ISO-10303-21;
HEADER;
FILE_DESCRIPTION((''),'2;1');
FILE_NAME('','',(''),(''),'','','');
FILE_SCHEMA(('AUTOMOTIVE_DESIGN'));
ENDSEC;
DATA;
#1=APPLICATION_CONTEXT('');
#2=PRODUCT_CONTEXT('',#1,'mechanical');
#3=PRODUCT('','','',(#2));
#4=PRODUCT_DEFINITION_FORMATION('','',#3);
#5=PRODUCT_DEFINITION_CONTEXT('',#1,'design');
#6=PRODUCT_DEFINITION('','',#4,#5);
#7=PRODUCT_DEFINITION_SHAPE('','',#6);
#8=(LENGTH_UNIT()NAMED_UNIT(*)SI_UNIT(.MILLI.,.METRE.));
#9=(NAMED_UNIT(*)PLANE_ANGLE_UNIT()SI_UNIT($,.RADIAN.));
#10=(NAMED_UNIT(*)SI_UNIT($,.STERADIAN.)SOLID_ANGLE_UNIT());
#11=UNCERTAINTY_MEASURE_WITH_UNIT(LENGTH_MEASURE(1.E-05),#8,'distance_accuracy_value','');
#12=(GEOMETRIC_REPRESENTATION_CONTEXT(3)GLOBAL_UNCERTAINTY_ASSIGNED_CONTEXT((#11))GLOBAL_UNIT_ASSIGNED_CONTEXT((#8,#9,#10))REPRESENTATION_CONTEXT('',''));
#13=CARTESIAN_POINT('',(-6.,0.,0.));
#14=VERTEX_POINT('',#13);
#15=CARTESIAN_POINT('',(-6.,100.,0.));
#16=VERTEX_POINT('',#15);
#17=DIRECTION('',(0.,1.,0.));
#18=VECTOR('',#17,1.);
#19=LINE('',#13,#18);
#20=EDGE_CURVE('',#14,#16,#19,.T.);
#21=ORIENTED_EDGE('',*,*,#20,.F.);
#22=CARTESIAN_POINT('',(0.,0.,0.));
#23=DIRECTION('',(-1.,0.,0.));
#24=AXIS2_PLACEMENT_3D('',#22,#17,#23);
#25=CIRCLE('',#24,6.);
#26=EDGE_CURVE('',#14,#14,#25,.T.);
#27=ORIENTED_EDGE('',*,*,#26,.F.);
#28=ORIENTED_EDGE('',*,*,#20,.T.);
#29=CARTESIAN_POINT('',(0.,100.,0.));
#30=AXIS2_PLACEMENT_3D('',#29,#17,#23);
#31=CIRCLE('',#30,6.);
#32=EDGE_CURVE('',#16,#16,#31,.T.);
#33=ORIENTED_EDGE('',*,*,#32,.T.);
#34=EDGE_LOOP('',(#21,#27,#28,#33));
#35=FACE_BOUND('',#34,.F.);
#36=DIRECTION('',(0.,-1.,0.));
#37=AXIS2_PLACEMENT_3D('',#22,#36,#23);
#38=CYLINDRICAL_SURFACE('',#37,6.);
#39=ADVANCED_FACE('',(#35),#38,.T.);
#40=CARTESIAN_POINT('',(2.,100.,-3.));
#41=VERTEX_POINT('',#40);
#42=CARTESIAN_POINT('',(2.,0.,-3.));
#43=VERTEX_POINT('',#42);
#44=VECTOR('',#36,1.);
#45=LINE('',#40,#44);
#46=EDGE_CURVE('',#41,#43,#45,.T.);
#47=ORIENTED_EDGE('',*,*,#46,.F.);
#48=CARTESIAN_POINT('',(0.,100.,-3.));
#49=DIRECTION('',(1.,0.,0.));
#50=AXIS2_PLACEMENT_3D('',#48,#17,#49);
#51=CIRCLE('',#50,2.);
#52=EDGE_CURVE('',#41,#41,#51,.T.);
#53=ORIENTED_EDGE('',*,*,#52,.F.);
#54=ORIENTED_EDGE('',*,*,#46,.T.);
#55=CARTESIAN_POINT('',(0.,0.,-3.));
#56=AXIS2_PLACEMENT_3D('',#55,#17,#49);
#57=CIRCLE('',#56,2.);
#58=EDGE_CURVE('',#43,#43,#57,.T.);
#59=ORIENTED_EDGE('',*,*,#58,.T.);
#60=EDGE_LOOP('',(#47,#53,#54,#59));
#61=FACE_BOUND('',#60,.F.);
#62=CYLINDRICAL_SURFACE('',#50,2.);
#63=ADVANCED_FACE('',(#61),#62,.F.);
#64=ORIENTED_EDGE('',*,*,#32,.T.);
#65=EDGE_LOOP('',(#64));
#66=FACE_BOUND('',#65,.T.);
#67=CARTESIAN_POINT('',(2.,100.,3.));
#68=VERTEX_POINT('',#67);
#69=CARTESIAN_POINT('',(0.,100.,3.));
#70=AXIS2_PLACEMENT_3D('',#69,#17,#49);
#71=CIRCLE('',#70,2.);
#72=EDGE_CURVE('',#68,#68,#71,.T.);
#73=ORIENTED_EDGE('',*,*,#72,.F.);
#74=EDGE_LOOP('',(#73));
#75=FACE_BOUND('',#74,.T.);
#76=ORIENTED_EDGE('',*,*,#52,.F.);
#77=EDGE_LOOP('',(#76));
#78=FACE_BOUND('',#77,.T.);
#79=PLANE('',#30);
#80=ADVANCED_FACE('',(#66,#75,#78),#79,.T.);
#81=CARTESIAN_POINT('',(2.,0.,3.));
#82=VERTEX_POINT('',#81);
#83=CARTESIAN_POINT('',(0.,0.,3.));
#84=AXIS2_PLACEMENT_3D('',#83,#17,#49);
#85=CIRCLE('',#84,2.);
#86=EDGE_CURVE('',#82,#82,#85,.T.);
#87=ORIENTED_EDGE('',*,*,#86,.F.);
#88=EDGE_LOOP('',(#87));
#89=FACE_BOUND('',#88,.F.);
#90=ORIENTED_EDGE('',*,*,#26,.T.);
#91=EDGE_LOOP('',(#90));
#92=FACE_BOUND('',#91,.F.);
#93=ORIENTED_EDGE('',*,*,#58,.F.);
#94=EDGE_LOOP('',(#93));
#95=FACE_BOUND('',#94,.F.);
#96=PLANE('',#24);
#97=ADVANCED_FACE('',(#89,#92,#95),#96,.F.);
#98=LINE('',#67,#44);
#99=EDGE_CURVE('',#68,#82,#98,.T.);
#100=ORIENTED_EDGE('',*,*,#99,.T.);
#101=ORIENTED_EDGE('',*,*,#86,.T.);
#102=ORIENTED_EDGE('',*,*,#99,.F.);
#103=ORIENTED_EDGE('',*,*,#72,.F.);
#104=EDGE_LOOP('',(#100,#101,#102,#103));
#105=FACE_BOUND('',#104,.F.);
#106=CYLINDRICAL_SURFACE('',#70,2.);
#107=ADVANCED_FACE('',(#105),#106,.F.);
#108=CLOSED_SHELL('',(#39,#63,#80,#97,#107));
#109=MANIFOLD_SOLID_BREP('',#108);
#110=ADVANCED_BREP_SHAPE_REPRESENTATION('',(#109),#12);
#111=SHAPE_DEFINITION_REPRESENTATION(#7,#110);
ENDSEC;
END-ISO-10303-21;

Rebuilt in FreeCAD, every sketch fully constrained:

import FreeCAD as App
import Part
import Sketcher
from FreeCAD import Vector

doc = App.newDocument("Part")
body = doc.addObject("PartDesign::Body", "Body")

# Sketch on XZ plane
sketch1 = body.newObject("Sketcher::SketchObject", "Sketch")
sketch1.AttachmentSupport = (doc.getObject("XZ_Plane"), [""])
sketch1.MapMode = "FlatFace"
sketch1.addGeometry(Part.Circle(Vector(0, 0, 0), Vector(0, 0, 1), 6), False)
sketch1.addConstraint(Sketcher.Constraint("Coincident", 0, 3, -1, 1))
sketch1.addConstraint(Sketcher.Constraint("Diameter", 0, 12.0))
pad1 = body.newObject("PartDesign::Pad", "Pad")
pad1.Profile = sketch1
pad1.Length = 100
pad1.Reversed = True

# Sketch on XZ plane
sketch2 = body.newObject("Sketcher::SketchObject", "Sketch001")
sketch2.AttachmentSupport = (doc.getObject("XZ_Plane"), [""])
sketch2.MapMode = "FlatFace"
sketch2.AttachmentOffset = App.Placement(Vector(0, 0, -100), App.Rotation())
sketch2.addGeometry(Part.Circle(Vector(0, 3, 0), Vector(0, 0, 1), 2), False)
sketch2.addGeometry(Part.Circle(Vector(0, -3, 0), Vector(0, 0, 1), 2), False)
sketch2.addConstraint(Sketcher.Constraint("Equal", 0, 1))
sketch2.addConstraint(Sketcher.Constraint("Symmetric", 0, 3, 1, 3, -1, 1))
sketch2.addConstraint(Sketcher.Constraint("PointOnObject", 0, 3, -2))
sketch2.addConstraint(Sketcher.Constraint("Diameter", 0, 4.0))
sketch2.addConstraint(Sketcher.Constraint("DistanceY", -1, 1, 0, 3, 3.0))
pocket1 = body.newObject("PartDesign::Pocket", "Pocket")
pocket1.Profile = sketch2
pocket1.Length = 100
pocket1.Reversed = True

doc.recompute()
